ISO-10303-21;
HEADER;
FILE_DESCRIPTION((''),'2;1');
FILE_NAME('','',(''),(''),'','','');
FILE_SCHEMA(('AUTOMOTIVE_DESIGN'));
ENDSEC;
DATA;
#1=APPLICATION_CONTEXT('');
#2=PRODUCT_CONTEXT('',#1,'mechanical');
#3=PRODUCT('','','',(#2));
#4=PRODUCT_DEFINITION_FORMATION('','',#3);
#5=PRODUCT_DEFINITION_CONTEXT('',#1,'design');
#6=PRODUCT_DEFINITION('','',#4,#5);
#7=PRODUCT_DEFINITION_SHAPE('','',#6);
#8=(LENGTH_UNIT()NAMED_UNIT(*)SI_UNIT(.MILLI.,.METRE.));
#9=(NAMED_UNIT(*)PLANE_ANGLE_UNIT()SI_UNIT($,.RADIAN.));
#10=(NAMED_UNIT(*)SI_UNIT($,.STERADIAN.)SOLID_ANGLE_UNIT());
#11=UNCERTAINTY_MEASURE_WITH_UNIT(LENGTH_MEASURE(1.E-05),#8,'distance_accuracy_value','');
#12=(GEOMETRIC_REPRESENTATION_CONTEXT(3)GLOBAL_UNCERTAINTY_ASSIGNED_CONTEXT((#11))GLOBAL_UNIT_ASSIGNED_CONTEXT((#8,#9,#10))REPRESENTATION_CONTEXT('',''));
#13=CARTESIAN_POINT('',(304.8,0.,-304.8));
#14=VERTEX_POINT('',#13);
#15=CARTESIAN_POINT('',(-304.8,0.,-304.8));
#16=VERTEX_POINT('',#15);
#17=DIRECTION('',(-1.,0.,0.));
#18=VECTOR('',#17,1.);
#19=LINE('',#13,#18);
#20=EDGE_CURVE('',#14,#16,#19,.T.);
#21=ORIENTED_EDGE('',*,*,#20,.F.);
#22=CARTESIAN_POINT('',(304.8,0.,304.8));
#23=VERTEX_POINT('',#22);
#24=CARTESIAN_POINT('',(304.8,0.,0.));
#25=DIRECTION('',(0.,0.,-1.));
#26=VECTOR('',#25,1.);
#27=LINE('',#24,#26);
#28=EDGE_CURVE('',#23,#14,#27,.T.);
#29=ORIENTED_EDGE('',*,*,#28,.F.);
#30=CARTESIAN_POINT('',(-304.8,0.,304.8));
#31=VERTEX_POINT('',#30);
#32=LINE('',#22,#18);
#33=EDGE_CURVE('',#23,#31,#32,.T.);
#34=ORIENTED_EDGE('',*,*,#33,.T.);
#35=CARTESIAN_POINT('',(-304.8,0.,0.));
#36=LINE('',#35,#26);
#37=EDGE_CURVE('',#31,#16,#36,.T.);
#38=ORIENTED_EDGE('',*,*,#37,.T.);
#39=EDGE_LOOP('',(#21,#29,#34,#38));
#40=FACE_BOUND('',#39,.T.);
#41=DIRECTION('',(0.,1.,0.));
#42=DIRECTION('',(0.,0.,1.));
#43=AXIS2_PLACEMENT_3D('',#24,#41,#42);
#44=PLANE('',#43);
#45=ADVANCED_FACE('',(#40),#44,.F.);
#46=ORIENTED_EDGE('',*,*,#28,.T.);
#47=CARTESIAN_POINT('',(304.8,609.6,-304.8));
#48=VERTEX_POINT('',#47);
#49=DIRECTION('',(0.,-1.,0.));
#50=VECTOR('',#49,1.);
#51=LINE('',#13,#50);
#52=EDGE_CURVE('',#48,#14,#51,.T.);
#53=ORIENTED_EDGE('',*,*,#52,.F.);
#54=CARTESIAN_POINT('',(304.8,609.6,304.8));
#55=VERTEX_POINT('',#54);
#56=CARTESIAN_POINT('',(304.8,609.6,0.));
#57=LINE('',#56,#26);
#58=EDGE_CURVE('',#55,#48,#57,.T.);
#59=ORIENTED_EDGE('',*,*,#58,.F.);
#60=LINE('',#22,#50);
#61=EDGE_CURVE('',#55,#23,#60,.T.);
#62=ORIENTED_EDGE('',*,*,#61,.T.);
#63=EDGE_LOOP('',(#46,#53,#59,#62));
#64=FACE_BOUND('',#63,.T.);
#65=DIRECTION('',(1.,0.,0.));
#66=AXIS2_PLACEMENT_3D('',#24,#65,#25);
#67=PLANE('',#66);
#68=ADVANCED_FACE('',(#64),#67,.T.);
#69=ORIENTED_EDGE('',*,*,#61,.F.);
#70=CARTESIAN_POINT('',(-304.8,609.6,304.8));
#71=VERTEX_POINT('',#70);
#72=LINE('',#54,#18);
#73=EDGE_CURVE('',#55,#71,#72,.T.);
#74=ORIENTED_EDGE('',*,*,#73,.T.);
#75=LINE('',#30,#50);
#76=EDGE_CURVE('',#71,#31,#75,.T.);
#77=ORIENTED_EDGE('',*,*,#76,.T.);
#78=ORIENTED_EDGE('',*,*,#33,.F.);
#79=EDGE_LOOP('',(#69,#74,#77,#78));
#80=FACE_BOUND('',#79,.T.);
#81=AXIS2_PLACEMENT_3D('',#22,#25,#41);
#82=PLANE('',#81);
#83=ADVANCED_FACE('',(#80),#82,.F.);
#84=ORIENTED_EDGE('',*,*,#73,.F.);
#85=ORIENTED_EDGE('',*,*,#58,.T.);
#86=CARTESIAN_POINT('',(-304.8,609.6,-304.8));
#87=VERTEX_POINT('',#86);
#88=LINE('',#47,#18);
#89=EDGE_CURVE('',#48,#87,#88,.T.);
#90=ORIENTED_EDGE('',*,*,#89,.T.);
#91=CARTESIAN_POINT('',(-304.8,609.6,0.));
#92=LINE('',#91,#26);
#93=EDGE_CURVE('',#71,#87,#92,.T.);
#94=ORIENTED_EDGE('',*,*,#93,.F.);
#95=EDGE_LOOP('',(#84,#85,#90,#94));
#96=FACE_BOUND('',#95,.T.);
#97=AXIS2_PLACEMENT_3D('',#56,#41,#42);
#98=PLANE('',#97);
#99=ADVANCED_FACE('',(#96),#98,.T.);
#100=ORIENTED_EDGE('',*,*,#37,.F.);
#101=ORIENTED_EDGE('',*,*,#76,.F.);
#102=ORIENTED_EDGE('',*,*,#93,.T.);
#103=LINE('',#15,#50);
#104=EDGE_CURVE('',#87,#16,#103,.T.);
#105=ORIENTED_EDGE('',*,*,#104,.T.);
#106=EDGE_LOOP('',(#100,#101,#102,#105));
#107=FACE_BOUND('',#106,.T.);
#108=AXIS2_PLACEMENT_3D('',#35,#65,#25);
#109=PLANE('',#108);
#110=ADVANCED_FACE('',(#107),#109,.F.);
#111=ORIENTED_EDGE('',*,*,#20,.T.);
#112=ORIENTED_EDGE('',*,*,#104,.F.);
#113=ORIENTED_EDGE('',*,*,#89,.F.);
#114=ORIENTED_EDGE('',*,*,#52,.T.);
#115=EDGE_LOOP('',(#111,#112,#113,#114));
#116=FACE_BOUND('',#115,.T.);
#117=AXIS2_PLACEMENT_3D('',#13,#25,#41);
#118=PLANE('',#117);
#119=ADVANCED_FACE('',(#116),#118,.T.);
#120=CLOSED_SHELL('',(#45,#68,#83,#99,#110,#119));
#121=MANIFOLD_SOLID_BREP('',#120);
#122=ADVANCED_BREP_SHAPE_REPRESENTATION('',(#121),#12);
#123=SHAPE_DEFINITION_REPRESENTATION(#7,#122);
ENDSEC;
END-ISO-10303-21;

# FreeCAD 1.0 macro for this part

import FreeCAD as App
import Part
import Sketcher
Q = App.Units.Quantity


def add_polygon(sketch, points):
    """Adds a closed chain of lines whose ends are joined by coincident constraints."""
    first, n = sketch.GeometryCount, len(points)
    for a, b in zip(points, points[1:] + points[:1]):
        sketch.addGeometry(Part.LineSegment(App.Vector(*a, 0), App.Vector(*b, 0)), False)
    for i in range(n):
        sketch.addConstraint(Sketcher.Constraint("Coincident", first + i, 2, first + (i + 1) % n, 1))

doc = App.newDocument("Part")
body = doc.addObject("PartDesign::Body", "Body")

sketch1 = body.newObject("Sketcher::SketchObject", "Sketch")
sketch1.AttachmentSupport = (doc.getObject("YZ_Plane"), [""])
sketch1.MapMode = "FlatFace"
add_polygon(sketch1, [(610, 305), (0, 305), (0, -305), (610, -305)])
sketch1.addConstraint([
    Sketcher.Constraint("Horizontal", 0),
    Sketcher.Constraint("Vertical", 1),
    Sketcher.Constraint("Horizontal", 2),
    Sketcher.Constraint("Vertical", 3),
    Sketcher.Constraint("Symmetric", 0, 2, 1, 2, -1, 1),
    Sketcher.Constraint("Equal", 2, 1),
    Sketcher.Constraint("DistanceX", 0, 2, 0, 1, Q("24 in")),
])
pad1 = body.newObject("PartDesign::Pad", "Pad")
pad1.Profile = sketch1
pad1.Length = Q("24 in")
pad1.Midplane = True

doc.recompute()
